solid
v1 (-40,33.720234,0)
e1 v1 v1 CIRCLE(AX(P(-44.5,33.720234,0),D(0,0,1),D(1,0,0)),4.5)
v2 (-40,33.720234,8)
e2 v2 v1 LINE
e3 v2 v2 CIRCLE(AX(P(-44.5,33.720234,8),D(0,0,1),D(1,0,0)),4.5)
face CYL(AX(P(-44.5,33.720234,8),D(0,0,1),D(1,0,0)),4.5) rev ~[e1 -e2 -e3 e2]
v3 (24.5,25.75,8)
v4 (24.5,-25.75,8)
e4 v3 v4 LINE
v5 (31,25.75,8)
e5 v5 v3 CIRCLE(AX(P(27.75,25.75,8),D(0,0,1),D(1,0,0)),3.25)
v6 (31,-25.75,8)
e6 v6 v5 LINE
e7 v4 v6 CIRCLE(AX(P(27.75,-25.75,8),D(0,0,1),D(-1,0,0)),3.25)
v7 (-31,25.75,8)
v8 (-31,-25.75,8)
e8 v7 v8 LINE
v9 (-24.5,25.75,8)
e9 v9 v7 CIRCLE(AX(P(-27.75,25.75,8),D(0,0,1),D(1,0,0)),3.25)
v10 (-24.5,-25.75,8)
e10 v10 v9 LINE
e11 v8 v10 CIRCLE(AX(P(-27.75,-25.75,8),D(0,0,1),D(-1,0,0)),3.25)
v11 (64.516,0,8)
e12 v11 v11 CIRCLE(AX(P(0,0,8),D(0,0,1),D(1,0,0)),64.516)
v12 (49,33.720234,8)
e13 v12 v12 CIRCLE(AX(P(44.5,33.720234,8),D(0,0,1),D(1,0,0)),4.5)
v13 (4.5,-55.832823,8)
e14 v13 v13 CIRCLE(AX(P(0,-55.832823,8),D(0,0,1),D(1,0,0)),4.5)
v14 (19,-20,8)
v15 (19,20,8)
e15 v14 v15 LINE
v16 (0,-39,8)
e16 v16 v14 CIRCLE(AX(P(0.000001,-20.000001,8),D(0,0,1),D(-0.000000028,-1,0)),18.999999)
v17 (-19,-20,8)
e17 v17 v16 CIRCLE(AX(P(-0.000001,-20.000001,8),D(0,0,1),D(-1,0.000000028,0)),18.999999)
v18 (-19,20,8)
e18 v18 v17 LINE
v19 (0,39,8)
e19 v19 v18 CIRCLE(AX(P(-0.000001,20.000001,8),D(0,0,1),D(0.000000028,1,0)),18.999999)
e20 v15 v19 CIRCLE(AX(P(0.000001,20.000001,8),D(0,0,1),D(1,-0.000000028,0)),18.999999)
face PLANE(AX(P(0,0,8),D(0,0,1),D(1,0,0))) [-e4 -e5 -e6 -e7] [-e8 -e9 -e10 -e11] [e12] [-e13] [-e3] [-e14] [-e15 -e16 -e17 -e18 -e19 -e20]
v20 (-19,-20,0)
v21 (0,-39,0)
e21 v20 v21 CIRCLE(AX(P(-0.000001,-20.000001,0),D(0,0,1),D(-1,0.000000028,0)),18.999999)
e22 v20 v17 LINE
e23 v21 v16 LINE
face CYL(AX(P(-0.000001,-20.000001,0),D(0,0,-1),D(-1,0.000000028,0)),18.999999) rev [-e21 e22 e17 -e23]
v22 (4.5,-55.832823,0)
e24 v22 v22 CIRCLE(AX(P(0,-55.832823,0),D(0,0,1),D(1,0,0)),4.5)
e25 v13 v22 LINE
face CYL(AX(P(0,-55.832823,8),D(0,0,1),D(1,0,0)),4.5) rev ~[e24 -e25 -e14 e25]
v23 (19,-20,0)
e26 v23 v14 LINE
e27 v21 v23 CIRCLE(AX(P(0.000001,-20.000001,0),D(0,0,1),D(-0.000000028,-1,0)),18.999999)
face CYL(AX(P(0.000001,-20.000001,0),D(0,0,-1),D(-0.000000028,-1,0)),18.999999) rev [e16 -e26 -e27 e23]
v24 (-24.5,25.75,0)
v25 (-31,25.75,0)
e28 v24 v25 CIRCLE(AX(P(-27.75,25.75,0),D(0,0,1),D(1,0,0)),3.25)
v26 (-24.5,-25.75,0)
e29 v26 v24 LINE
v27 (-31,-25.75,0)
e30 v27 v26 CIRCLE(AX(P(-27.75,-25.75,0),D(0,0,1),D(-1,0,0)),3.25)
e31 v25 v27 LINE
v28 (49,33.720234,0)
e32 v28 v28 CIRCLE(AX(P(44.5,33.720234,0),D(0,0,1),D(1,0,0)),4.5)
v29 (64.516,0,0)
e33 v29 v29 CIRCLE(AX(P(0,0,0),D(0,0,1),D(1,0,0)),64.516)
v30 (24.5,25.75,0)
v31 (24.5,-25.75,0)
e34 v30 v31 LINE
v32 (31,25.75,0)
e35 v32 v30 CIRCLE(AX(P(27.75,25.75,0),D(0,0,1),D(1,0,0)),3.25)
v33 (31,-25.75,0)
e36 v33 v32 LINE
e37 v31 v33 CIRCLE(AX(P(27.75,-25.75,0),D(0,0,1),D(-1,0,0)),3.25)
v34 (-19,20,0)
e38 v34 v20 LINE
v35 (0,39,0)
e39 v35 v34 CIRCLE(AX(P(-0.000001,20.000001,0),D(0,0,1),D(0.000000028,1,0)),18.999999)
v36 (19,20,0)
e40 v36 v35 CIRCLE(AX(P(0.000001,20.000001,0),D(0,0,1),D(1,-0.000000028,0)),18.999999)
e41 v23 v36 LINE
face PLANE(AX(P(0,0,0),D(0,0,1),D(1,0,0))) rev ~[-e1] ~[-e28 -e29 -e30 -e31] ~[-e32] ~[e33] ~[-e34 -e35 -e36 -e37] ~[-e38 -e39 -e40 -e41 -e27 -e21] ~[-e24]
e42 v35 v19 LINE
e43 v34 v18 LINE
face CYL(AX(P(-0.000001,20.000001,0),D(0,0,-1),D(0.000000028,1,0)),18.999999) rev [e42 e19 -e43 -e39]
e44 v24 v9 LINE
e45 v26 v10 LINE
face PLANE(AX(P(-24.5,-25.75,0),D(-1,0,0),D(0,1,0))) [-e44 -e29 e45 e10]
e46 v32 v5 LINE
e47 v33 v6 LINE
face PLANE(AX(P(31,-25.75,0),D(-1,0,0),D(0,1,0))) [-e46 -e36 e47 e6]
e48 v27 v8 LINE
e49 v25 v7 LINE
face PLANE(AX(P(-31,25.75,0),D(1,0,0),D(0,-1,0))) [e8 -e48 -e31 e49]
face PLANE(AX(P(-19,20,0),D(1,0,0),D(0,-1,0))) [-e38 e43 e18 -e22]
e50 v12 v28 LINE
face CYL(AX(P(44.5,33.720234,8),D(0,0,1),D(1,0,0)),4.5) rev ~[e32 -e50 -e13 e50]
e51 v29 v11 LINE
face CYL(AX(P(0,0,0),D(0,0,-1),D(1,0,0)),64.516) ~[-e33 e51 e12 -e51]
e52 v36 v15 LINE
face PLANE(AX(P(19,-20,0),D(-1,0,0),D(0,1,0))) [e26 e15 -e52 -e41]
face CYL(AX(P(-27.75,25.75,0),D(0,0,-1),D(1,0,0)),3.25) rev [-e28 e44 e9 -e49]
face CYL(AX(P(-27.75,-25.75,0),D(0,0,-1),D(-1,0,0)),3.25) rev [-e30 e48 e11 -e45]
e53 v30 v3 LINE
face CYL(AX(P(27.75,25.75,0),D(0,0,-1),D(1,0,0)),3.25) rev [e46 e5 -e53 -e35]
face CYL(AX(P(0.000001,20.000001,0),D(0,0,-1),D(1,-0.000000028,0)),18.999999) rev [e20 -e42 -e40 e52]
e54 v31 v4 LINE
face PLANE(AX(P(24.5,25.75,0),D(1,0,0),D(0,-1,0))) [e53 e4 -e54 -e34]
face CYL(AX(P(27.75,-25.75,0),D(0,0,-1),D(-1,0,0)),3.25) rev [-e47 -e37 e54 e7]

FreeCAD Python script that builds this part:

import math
import FreeCAD as App
import Part
import Sketcher
from FreeCAD import Vector
Q = App.Units.Quantity

doc = App.newDocument("Part")
body = doc.addObject("PartDesign::Body", "Body")

# Sketch on XY plane
sketch1 = body.newObject("Sketcher::SketchObject", "Sketch")
sketch1.AttachmentSupport = (doc.getObject("XY_Plane"), [""])
sketch1.MapMode = "FlatFace"
sketch1.addGeometry(Part.Circle(Vector(0, 0, 0), Vector(0, 0, 1), 65), False)
sketch1.addConstraint(Sketcher.Constraint("Coincident", 0, 3, -1, 1))
sketch1.addConstraint(Sketcher.Constraint("Diameter", 0, Q("129.032 mm")))
pad1 = body.newObject("PartDesign::Pad", "Pad")
pad1.Profile = sketch1
pad1.Length = 8

# Sketch on XY plane
sketch2 = body.newObject("Sketcher::SketchObject", "Sketch001")
sketch2.AttachmentSupport = (doc.getObject("XY_Plane"), [""])
sketch2.MapMode = "FlatFace"
sketch2.addGeometry(Part.LineSegment(Vector(-19, 20, 0), Vector(-19, -20, 0)), False)
sketch2.addGeometry(Part.ArcOfCircle(Part.Circle(Vector(0, -20, 0), Vector(0, 0, 1), 19), math.radians(180), math.radians(270)), False)
sketch2.addGeometry(Part.ArcOfCircle(Part.Circle(Vector(0, -20, 0), Vector(0, 0, 1), 19), math.radians(-90), math.radians(0)), False)
sketch2.addGeometry(Part.LineSegment(Vector(19, -20, 0), Vector(19, 20, 0)), False)
sketch2.addGeometry(Part.ArcOfCircle(Part.Circle(Vector(0, 20, 0), Vector(0, 0, 1), 19), math.radians(0), math.radians(90)), False)
sketch2.addGeometry(Part.ArcOfCircle(Part.Circle(Vector(0, 20, 0), Vector(0, 0, 1), 19), math.radians(90), math.radians(180)), False)
sketch2.addGeometry(Part.LineSegment(Vector(-24.5, -25.8, 0), Vector(-24.5, 25.8, 0)), False)
sketch2.addGeometry(Part.ArcOfCircle(Part.Circle(Vector(-27.8, 25.8, 0), Vector(0, 0, 1), 3.2), math.radians(0), math.radians(180)), False)
sketch2.addGeometry(Part.LineSegment(Vector(-31, 25.8, 0), Vector(-31, -25.8, 0)), False)
sketch2.addGeometry(Part.ArcOfCircle(Part.Circle(Vector(-27.8, -25.8, 0), Vector(0, 0, 1), 3.2), math.radians(180), math.radians(360)), False)
sketch2.addGeometry(Part.LineSegment(Vector(24.5, 25.8, 0), Vector(24.5, -25.8, 0)), False)
sketch2.addGeometry(Part.ArcOfCircle(Part.Circle(Vector(27.8, -25.8, 0), Vector(0, 0, 1), 3.2), math.radians(180), math.radians(360)), False)
sketch2.addGeometry(Part.LineSegment(Vector(31, -25.8, 0), Vector(31, 25.8, 0)), False)
sketch2.addGeometry(Part.ArcOfCircle(Part.Circle(Vector(27.8, 25.8, 0), Vector(0, 0, 1), 3.2), math.radians(0), math.radians(180)), False)
sketch2.addConstraint(Sketcher.Constraint("Tangent", 0, 2, 1, 1))
sketch2.addConstraint(Sketcher.Constraint("Tangent", 1, 2, 2, 1))
sketch2.addConstraint(Sketcher.Constraint("Tangent", 2, 2, 3, 1))
sketch2.addConstraint(Sketcher.Constraint("Tangent", 3, 2, 4, 1))
sketch2.addConstraint(Sketcher.Constraint("Tangent", 4, 2, 5, 1))
sketch2.addConstraint(Sketcher.Constraint("Tangent", 5, 2, 0, 1))
sketch2.addConstraint(Sketcher.Constraint("Tangent", 6, 2, 7, 1))
sketch2.addConstraint(Sketcher.Constraint("Tangent", 7, 2, 8, 1))
sketch2.addConstraint(Sketcher.Constraint("Tangent", 8, 2, 9, 1))
sketch2.addConstraint(Sketcher.Constraint("Tangent", 9, 2, 6, 1))
sketch2.addConstraint(Sketcher.Constraint("Tangent", 10, 2, 11, 1))
sketch2.addConstraint(Sketcher.Constraint("Tangent", 11, 2, 12, 1))
sketch2.addConstraint(Sketcher.Constraint("Tangent", 12, 2, 13, 1))
sketch2.addConstraint(Sketcher.Constraint("Tangent", 13, 2, 10, 1))
sketch2.addConstraint(Sketcher.Constraint("Vertical", 0))
sketch2.addConstraint(Sketcher.Constraint("Vertical", 3))
sketch2.addConstraint(Sketcher.Constraint("Vertical", 6))
sketch2.addConstraint(Sketcher.Constraint("Vertical", 8))
sketch2.addConstraint(Sketcher.Constraint("Vertical", 10))
sketch2.addConstraint(Sketcher.Constraint("Vertical", 12))
sketch2.addConstraint(Sketcher.Constraint("Equal", 1, 2))
sketch2.addConstraint(Sketcher.Constraint("Equal", 2, 4))
sketch2.addConstraint(Sketcher.Constraint("Equal", 9, 11))
sketch2.addConstraint(Sketcher.Constraint("Symmetric", 1, 3, 4, 3, -1, 1))
sketch2.addConstraint(Sketcher.Constraint("Symmetric", 7, 3, 11, 3, -1, 1))
sketch2.addConstraint(Sketcher.Constraint("PointOnObject", 1, 2, -2))
sketch2.addConstraint(Sketcher.Constraint("PointOnObject", 4, 2, -2))
sketch2.addConstraint(Sketcher.Constraint("Horizontal", 9, 3, 11, 3))
sketch2.addConstraint(Sketcher.Constraint("Horizontal", 7, 3, 13, 3))
sketch2.addConstraint(Sketcher.Constraint("Radius", 1, Q("18.999999 mm")))
sketch2.addConstraint(Sketcher.Constraint("DistanceY", 0, 2, 0, 1, Q("40 mm")))
sketch2.addConstraint(Sketcher.Constraint("Radius", 7, Q("3.25 mm")))
sketch2.addConstraint(Sketcher.Constraint("DistanceY", 6, 1, 6, 2, Q("51.5 mm")))
sketch2.addConstraint(Sketcher.Constraint("DistanceX", 7, 2, -1, 1, Q("31 mm")))
pocket1 = body.newObject("PartDesign::Pocket", "Pocket")
pocket1.Profile = sketch2
pocket1.Type = "ThroughAll"
pocket1.Reversed = True

# Sketch on XY plane
sketch3 = body.newObject("Sketcher::SketchObject", "Sketch002")
sketch3.AttachmentSupport = (doc.getObject("XY_Plane"), [""])
sketch3.MapMode = "FlatFace"
sketch3.AttachmentOffset = App.Placement(Vector(0, 0, 8), App.Rotation())
sketch3.addGeometry(Part.Circle(Vector(0, -55.8, 0), Vector(0, 0, 1), 4.5), False)
sketch3.addGeometry(Part.Circle(Vector(-44.5, 33.7, 0), Vector(0, 0, 1), 4.5), False)
sketch3.addGeometry(Part.Circle(Vector(44.5, 33.7, 0), Vector(0, 0, 1), 4.5), False)
sketch3.addConstraint(Sketcher.Constraint("Equal", 0, 1))
sketch3.addConstraint(Sketcher.Constraint("Equal", 1, 2))
sketch3.addConstraint(Sketcher.Constraint("Symmetric", 1, 3, 2, 3, -2))
sketch3.addConstraint(Sketcher.Constraint("PointOnObject", 0, 3, -2))
sketch3.addConstraint(Sketcher.Constraint("Diameter", 0, Q("9 mm")))
sketch3.addConstraint(Sketcher.Constraint("DistanceX", 1, 3, 2, 3, Q("89 mm")))
sketch3.addConstraint(Sketcher.Constraint("DistanceY", 0, 3, -1, 1, Q("55.832823 mm")))
sketch3.addConstraint(Sketcher.Constraint("DistanceY", -1, 1, 1, 3, Q("33.720234 mm")))
pocket2 = body.newObject("PartDesign::Pocket", "Pocket001")
pocket2.Profile = sketch3
pocket2.Type = "ThroughAll"

doc.recompute()
